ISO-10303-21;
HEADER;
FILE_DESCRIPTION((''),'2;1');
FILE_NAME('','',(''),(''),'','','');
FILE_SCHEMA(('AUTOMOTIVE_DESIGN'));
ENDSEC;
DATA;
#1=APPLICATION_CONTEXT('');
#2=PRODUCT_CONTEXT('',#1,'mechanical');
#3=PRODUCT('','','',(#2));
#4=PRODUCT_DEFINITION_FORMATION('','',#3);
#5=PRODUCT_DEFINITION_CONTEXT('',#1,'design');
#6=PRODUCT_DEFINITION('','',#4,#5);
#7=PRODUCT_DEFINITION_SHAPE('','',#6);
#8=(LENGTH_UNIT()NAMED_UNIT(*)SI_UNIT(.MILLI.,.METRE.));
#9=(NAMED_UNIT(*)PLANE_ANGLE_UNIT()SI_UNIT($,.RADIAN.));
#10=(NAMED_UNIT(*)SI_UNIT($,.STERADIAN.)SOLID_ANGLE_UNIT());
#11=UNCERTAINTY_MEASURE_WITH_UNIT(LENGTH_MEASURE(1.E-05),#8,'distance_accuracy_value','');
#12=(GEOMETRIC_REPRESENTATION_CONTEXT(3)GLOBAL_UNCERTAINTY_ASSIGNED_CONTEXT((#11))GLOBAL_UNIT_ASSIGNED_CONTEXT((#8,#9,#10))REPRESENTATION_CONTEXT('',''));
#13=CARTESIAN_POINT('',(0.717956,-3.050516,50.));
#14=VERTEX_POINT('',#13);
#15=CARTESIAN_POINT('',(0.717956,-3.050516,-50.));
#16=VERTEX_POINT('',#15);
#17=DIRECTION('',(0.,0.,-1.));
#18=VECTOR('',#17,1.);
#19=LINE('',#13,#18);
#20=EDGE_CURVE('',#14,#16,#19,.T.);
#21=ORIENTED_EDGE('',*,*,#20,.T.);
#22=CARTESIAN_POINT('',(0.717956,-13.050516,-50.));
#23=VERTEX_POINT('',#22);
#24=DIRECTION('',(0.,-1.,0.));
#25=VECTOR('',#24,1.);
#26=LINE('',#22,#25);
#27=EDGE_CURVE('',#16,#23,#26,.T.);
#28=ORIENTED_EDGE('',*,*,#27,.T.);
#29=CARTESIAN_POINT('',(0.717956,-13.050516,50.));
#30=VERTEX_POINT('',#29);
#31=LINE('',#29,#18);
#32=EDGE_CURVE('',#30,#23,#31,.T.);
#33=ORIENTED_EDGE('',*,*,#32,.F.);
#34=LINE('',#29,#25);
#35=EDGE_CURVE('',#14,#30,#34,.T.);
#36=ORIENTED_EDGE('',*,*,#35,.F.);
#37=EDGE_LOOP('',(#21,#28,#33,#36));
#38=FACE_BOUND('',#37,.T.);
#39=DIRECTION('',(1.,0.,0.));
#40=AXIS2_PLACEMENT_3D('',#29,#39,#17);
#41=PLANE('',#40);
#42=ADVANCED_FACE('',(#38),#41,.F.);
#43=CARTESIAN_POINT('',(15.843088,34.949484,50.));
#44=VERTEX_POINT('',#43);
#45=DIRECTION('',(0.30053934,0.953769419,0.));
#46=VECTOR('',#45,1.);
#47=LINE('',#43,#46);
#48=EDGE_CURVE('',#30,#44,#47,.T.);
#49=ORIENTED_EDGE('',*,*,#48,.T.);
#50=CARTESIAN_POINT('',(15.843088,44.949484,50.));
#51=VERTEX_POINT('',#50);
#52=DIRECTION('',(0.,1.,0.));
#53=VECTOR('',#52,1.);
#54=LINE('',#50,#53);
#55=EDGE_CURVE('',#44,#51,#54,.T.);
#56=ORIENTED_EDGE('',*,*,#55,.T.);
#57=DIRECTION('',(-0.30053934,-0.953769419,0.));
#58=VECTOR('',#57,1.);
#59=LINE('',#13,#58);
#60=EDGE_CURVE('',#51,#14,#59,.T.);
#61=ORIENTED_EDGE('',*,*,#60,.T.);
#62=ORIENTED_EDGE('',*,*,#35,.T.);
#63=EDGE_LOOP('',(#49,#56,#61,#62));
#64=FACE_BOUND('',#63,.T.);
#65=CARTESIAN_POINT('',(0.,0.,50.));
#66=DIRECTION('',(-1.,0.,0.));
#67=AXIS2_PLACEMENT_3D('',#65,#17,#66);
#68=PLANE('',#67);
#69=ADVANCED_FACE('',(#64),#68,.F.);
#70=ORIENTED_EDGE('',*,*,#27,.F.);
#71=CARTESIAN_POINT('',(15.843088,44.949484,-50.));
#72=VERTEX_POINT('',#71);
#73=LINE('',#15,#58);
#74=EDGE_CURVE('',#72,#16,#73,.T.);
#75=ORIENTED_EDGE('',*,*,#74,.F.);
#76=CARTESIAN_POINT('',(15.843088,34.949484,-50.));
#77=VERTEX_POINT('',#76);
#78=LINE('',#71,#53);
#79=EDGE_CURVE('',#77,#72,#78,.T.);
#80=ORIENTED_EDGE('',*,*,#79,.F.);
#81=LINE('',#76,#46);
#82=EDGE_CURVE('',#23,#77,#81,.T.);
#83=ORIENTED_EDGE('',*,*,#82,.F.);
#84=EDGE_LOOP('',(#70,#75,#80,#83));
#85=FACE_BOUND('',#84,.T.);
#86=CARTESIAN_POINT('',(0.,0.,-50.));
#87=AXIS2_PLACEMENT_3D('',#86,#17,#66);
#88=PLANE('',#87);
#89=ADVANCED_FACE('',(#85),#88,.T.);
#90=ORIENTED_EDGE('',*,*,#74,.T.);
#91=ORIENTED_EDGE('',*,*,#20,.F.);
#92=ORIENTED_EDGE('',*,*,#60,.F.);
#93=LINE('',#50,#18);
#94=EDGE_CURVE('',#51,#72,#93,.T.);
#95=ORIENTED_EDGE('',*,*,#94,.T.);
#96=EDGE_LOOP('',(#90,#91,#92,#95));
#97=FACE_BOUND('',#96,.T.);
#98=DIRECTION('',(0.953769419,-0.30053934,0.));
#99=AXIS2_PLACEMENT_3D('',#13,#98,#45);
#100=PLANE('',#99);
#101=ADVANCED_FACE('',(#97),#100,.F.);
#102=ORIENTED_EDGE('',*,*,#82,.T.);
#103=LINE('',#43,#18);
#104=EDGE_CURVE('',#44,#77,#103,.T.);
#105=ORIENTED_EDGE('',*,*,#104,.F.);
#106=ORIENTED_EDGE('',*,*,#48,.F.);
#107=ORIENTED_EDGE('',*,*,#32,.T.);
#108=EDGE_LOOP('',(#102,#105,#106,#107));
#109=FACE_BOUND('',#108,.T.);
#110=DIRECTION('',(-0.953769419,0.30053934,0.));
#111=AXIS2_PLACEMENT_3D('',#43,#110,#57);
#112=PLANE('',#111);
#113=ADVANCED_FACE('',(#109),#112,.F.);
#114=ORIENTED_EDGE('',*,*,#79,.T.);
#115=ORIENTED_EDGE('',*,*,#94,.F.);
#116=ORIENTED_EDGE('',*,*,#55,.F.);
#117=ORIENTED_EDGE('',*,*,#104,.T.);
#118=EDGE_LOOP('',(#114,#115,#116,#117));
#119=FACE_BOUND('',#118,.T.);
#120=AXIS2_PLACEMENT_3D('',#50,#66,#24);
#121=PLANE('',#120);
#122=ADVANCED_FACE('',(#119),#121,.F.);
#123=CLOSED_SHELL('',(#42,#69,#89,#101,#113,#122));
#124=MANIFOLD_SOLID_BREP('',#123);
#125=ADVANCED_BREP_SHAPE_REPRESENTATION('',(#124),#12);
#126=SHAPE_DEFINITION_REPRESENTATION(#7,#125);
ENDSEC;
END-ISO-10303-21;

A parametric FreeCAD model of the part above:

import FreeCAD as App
import Part
import Sketcher
Q = App.Units.Quantity


def add_polygon(sketch, points):
    """Adds a closed chain of lines whose ends are joined by coincident constraints."""
    first, n = sketch.GeometryCount, len(points)
    for a, b in zip(points, points[1:] + points[:1]):
        sketch.addGeometry(Part.LineSegment(App.Vector(*a, 0), App.Vector(*b, 0)), False)
    for i in range(n):
        sketch.addConstraint(Sketcher.Constraint("Coincident", first + i, 2, first + (i + 1) % n, 1))

doc = App.newDocument("Part")
body = doc.addObject("PartDesign::Body", "Body")

# Sketch on XY plane
sketch1 = body.newObject("Sketcher::SketchObject", "Sketch")
sketch1.AttachmentSupport = (doc.getObject("XY_Plane"), [""])
sketch1.MapMode = "FlatFace"
add_polygon(sketch1, [(16, 35), (16, 45), (1, -3), (1, -13)])  # lines 0-3
sketch1.addConstraint([
    Sketcher.Constraint("Vertical", 0),
    Sketcher.Constraint("Vertical", 2),
    Sketcher.Constraint("Parallel", 1, 3),
    Sketcher.Constraint("DistanceY", 0, 1, 0, 2, Q("10 mm")),
    Sketcher.Constraint("DistanceY", 1, 2, 0, 2, Q("48 mm")),
    Sketcher.Constraint("Angle", 1, Q("-107.49 deg")),
    Sketcher.Constraint("DistanceX", -1, 1, 0, 2, Q("15.843088 mm")),
    Sketcher.Constraint("DistanceY", -1, 1, 0, 2, Q("44.949484 mm")),
])
pad1 = body.newObject("PartDesign::Pad", "Pad")
pad1.Profile = sketch1
pad1.Length = 100
pad1.Midplane = True

doc.recompute()
